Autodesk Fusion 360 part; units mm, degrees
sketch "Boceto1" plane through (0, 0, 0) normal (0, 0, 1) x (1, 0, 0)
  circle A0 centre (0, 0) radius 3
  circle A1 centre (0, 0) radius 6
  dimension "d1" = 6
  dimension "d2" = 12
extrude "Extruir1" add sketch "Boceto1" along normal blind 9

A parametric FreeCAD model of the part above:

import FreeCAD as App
import Part
import Sketcher
Q = App.Units.Quantity

doc = App.newDocument("Part")
body = doc.addObject("PartDesign::Body", "Body")

sketch1 = body.newObject("Sketcher::SketchObject", "Sketch")
sketch1.AttachmentSupport = (doc.getObject("XY_Plane"), [""])
sketch1.MapMode = "FlatFace"
sketch1.addGeometry([
    Part.Circle(App.Vector(0, 0, 0), App.Vector(0, 0, 1), 6),
    Part.Circle(App.Vector(0, 0, 0), App.Vector(0, 0, 1), 3),
], False)
sketch1.addConstraint([
    Sketcher.Constraint("Coincident", 0, 3, -1, 1),
    Sketcher.Constraint("Coincident", 1, 3, -1, 1),
    Sketcher.Constraint("Diameter", 0, Q("12 mm")),
    Sketcher.Constraint("Diameter", 1, Q("6 mm")),
])
pad1 = body.newObject("PartDesign::Pad", "Pad")
pad1.Profile = sketch1
pad1.Length = 9

doc.recompute()
